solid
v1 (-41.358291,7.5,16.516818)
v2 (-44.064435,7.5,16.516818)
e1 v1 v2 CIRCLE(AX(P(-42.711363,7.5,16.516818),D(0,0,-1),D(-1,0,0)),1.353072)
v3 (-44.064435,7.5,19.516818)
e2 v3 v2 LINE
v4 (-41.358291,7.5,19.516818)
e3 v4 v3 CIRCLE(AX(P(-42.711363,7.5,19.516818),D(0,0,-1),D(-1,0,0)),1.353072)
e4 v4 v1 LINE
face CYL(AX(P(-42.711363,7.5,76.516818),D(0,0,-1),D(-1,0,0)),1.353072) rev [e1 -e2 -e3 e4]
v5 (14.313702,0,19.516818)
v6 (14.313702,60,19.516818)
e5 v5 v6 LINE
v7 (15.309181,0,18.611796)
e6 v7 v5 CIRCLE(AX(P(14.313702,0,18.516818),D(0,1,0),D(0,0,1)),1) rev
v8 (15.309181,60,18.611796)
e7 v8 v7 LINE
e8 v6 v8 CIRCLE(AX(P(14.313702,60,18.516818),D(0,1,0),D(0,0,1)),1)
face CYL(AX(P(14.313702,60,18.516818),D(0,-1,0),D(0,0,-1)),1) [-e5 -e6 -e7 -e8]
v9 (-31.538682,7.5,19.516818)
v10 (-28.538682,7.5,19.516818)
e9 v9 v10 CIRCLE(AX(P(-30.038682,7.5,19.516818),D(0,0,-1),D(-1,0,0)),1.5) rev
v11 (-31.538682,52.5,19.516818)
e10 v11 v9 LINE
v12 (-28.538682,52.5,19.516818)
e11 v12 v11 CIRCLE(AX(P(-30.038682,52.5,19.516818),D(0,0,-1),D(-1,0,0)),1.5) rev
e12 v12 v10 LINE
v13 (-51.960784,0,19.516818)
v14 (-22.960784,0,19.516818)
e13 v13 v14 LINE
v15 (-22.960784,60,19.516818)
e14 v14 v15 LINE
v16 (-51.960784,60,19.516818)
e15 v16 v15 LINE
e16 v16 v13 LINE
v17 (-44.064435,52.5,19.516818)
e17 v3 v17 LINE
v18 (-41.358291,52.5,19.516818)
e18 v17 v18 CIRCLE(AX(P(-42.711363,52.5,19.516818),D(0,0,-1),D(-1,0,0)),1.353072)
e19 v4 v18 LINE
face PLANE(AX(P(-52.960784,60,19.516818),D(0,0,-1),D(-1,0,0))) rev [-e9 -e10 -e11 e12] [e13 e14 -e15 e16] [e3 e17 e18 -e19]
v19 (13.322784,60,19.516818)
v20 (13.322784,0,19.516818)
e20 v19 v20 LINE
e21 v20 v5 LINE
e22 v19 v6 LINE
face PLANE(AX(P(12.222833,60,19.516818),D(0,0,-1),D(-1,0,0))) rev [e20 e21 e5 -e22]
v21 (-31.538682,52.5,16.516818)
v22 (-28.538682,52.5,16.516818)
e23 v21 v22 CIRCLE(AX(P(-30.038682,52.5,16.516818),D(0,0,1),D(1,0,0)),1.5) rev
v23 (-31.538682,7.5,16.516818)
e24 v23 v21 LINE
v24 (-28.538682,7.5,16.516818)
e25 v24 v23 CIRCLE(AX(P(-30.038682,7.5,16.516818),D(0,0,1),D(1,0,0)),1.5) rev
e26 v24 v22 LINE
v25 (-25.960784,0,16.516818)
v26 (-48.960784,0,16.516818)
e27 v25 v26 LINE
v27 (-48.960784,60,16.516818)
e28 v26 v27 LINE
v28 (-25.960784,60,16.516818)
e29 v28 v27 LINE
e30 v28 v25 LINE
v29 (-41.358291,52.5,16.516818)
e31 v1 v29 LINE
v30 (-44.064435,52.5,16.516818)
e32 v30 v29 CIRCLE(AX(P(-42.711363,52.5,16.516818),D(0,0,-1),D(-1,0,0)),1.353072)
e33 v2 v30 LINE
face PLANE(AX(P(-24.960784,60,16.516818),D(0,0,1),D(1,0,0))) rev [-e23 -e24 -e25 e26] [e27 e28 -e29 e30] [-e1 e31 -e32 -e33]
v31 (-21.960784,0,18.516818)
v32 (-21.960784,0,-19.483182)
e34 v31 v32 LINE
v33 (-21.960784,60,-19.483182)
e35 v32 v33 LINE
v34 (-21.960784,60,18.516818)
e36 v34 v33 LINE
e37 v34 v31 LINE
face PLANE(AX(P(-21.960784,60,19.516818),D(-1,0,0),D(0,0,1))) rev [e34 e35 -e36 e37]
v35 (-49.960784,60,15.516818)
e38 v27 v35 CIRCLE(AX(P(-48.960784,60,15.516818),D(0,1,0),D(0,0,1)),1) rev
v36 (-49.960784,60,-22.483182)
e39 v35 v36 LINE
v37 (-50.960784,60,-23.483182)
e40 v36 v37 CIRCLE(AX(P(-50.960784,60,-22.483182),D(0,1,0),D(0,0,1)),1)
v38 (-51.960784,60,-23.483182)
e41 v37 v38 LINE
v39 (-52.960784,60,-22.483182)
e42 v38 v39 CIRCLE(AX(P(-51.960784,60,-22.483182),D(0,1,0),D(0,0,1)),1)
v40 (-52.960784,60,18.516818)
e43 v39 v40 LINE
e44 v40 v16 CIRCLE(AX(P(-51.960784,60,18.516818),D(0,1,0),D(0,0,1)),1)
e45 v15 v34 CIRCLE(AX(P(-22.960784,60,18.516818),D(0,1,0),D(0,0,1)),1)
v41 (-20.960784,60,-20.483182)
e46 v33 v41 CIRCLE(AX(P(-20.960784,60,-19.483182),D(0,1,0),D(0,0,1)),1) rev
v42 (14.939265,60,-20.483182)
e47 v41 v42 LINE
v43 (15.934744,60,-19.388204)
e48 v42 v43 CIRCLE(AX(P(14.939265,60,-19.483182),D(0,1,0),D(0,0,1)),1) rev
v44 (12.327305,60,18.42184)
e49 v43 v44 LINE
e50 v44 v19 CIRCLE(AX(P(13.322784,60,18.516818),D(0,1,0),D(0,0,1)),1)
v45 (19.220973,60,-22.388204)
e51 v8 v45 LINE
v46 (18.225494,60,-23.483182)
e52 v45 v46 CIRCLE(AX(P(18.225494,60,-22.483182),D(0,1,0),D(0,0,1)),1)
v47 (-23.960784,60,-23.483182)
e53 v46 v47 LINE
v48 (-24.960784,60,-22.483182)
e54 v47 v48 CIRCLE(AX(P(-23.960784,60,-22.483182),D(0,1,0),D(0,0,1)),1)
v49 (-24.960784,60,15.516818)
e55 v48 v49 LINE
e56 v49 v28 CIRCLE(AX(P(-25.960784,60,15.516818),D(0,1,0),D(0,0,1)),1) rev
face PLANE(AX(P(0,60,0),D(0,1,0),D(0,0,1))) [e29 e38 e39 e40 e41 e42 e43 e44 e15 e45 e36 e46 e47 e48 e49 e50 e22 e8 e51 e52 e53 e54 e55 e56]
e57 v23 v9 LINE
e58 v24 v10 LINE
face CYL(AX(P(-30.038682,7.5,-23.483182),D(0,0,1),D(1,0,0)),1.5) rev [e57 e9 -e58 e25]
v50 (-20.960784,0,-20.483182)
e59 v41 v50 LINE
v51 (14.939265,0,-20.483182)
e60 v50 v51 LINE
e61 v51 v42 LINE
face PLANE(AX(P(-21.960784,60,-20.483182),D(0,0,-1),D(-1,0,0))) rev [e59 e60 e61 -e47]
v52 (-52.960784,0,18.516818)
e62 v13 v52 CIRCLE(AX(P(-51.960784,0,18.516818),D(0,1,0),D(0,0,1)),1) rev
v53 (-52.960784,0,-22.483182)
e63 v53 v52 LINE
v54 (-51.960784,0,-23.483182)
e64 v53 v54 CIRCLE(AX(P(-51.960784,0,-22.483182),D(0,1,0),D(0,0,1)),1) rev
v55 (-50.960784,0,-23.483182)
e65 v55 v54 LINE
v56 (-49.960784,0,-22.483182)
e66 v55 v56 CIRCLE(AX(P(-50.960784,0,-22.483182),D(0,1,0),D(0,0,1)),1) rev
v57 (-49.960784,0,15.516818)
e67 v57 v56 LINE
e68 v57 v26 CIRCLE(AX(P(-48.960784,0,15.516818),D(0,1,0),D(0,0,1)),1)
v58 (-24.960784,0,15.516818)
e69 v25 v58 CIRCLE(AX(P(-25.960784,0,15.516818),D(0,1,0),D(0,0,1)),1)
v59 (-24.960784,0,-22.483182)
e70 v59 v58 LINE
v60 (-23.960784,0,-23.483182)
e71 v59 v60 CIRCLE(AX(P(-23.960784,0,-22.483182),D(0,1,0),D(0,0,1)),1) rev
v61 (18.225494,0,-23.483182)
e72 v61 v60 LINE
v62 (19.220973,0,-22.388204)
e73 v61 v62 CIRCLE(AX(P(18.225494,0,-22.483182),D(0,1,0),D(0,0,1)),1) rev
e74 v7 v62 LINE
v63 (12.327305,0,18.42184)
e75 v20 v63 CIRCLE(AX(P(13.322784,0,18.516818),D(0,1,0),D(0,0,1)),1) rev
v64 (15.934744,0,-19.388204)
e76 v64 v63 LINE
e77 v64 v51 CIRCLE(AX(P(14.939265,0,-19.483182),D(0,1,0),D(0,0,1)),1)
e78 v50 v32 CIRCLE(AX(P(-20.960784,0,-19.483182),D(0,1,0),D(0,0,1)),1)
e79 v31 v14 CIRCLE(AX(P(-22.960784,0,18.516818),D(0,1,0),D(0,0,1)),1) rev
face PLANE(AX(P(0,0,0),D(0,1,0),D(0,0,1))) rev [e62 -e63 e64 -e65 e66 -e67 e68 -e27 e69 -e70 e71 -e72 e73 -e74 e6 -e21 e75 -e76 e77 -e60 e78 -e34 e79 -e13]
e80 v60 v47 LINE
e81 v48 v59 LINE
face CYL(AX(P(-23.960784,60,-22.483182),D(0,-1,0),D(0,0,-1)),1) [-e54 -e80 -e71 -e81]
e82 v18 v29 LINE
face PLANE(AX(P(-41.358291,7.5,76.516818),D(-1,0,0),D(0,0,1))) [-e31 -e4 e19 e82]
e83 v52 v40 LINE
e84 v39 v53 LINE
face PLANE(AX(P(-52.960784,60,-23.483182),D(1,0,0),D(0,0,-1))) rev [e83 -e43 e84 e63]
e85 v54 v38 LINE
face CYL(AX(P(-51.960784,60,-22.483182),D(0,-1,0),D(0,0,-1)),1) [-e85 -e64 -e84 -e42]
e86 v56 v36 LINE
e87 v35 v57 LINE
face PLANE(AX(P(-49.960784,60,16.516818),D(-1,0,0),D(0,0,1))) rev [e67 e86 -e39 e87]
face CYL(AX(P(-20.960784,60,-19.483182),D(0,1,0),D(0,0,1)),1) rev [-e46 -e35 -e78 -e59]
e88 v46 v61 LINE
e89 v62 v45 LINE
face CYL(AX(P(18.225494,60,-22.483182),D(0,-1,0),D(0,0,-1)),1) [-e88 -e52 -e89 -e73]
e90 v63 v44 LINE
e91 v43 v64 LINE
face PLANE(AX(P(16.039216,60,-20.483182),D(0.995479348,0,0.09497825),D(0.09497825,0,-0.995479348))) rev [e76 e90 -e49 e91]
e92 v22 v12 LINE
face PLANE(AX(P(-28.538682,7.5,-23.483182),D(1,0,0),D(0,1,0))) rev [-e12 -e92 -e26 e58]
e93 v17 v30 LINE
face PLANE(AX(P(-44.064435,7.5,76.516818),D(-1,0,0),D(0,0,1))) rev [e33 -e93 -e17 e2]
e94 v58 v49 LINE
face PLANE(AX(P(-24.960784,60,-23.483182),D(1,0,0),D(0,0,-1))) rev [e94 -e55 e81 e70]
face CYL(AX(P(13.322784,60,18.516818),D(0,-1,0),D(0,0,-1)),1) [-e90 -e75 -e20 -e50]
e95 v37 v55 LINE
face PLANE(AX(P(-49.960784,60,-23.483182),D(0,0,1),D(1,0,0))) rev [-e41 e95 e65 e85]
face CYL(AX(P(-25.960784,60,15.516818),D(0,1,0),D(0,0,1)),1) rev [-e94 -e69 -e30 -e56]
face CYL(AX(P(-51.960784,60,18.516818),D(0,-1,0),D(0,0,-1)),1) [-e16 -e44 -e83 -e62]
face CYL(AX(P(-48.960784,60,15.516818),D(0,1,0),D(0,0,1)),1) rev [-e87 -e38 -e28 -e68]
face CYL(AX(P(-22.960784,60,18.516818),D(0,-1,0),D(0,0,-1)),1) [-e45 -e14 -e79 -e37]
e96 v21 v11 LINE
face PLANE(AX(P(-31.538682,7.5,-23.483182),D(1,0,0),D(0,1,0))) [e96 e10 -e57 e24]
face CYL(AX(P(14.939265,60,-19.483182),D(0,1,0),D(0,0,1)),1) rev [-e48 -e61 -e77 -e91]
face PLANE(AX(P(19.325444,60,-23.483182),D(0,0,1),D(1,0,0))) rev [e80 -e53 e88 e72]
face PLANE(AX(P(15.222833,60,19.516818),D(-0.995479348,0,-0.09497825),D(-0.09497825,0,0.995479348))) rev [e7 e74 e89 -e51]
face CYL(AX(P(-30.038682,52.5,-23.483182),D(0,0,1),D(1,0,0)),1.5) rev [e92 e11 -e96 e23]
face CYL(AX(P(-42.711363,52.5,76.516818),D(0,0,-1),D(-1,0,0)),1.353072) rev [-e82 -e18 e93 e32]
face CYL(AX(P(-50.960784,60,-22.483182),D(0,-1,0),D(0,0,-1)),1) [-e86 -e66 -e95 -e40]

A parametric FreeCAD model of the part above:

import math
import FreeCAD as App
import Part
import Sketcher

V = App.Vector


def edges_at(feature, points):
    """Names of the edges that pass closest to the given points."""
    edges = feature.Shape.Edges
    near = lambda p: min(range(len(edges)), key=lambda i: edges[i].distToShape(Part.Vertex(*p))[0])
    return sorted({f"Edge{near(p) + 1}" for p in points})

doc = App.newDocument("Part")
body = doc.addObject("PartDesign::Body", "Body")

# Sketch on XZ plane
sketch1 = doc.addObject("Sketcher::SketchObject", "Sketch")
body.addObject(sketch1)
sketch1.AttachmentSupport = (doc.XZ_Plane, [""])
sketch1.MapMode = "FlatFace"
sketch1.addGeometry([
    Part.LineSegment(V(-21.960784, 19.516818, 0), V(-21.960784, -20.483182, 0)),  # 0
    Part.LineSegment(V(-21.960784, -20.483182, 0), V(16.039216, -20.483182, 0)),  # 1
    Part.LineSegment(V(16.039216, -20.483182, 0), V(12.222833, 19.516818, 0)),  # 2
    Part.LineSegment(V(12.222833, 19.516818, 0), V(15.222833, 19.516818, 0)),  # 3
    Part.LineSegment(V(15.222833, 19.516818, 0), V(19.325444, -23.483182, 0)),  # 4
    Part.LineSegment(V(19.325444, -23.483182, 0), V(-24.960784, -23.483182, 0)),  # 5
    Part.LineSegment(V(-24.960784, -23.483182, 0), V(-24.960784, 16.516818, 0)),  # 6
    Part.LineSegment(V(-24.960784, 16.516818, 0), V(-49.960784, 16.516818, 0)),  # 7
    Part.LineSegment(V(-49.960784, 16.516818, 0), V(-49.960784, -23.483182, 0)),  # 8
    Part.LineSegment(V(-49.960784, -23.483182, 0), V(-52.960784, -23.483182, 0)),  # 9
    Part.LineSegment(V(-52.960784, -23.483182, 0), V(-52.960784, 19.516818, 0)),  # 10
    Part.LineSegment(V(-52.960784, 19.516818, 0), V(-21.960784, 19.516818, 0)),  # 11
], False)
sketch1.addConstraint([
    Sketcher.Constraint("Coincident", 0, 2, 1, 1),
    Sketcher.Constraint("Coincident", 1, 2, 2, 1),
    Sketcher.Constraint("Coincident", 2, 2, 3, 1),
    Sketcher.Constraint("Coincident", 3, 2, 4, 1),
    Sketcher.Constraint("Coincident", 4, 2, 5, 1),
    Sketcher.Constraint("Coincident", 5, 2, 6, 1),
    Sketcher.Constraint("Coincident", 6, 2, 7, 1),
    Sketcher.Constraint("Coincident", 7, 2, 8, 1),
    Sketcher.Constraint("Coincident", 8, 2, 9, 1),
    Sketcher.Constraint("Coincident", 9, 2, 10, 1),
    Sketcher.Constraint("Coincident", 10, 2, 11, 1),
    Sketcher.Constraint("Coincident", 11, 2, 0, 1),
    Sketcher.Constraint("Vertical", 0),
    Sketcher.Constraint("Horizontal", 1),
    Sketcher.Constraint("Horizontal", 3),
    Sketcher.Constraint("Horizontal", 5),
    Sketcher.Constraint("Vertical", 6),
    Sketcher.Constraint("Horizontal", 7),
    Sketcher.Constraint("Vertical", 8),
    Sketcher.Constraint("Horizontal", 9),
    Sketcher.Constraint("Vertical", 10),
    Sketcher.Constraint("Horizontal", 11),
    Sketcher.Constraint("Parallel", 2, 4),
    Sketcher.Constraint("Horizontal", 5, 2, 8, 2),
    Sketcher.Constraint("Horizontal", 3, 2, 10, 2),
    Sketcher.Constraint("Equal", 3, 9),
    Sketcher.Constraint("Equal", 0, 6),
    Sketcher.Constraint("DistanceX", 1, 1, 1, 2, 38.0),
    Sketcher.Constraint("DistanceX", 3, 1, 3, 2, 3.0),
    Sketcher.Constraint("DistanceX", 7, 2, 7, 1, 25.0),
    Sketcher.Constraint("DistanceX", 11, 1, 11, 2, 31.0),
    Sketcher.Constraint("DistanceY", 0, 2, 0, 1, 40.0),
    Sketcher.Constraint("DistanceY", 10, 1, 10, 2, 43.0),
    Sketcher.Constraint("DistanceX", 5, 2, 5, 1, 44.286229),
    Sketcher.Constraint("DistanceX", 0, 2, -1, 1, 21.960784),
    Sketcher.Constraint("DistanceY", 0, 2, -1, 1, 20.483182),
])
pad1 = doc.addObject("PartDesign::Pad", "Pad")
body.addObject(pad1)
pad1.Profile = sketch1
pad1.Length = 60
pad1.Reversed = True
doc.recompute()

fillet = doc.addObject("PartDesign::Fillet", "Fillet")
body.addObject(fillet)
fillet.Base = (pad1, edges_at(pad1, [
    (-52.961, 30, 19.517),
    (-52.961, 30, -23.483),
    (-49.961, 30, -23.483),
    (-49.961, 30, 16.517),
    (-24.961, 30, 16.517),
    (-24.961, 30, -23.483),
    (19.325, 30, -23.483),
    (15.223, 30, 19.517),
    (12.223, 30, 19.517),
    (16.039, 30, -20.483),
    (-21.961, 30, -20.483),
    (-21.961, 30, 19.517),
]))
fillet.Radius = 1

# Sketch on XY plane
sketch2 = doc.addObject("Sketcher::SketchObject", "Sketch001")
body.addObject(sketch2)
sketch2.AttachmentSupport = (doc.XY_Plane, [""])
sketch2.MapMode = "FlatFace"
sketch2.AttachmentOffset = App.Placement(V(0, 0, 16.516818), App.Rotation())
sketch2.addGeometry([
    Part.LineSegment(V(-41.358291, 52.5, 0), V(-41.358291, 7.5, 0)),
    Part.ArcOfCircle(Part.Circle(V(-42.711363, 7.5, 0), V(0, 0, 1), 1.353072), math.radians(180), math.radians(360)),
    Part.LineSegment(V(-44.064435, 7.5, 0), V(-44.064435, 52.5, 0)),
    Part.ArcOfCircle(Part.Circle(V(-42.711363, 52.5, 0), V(0, 0, 1), 1.353072), math.radians(0), math.radians(180)),
], False)
sketch2.addConstraint([
    Sketcher.Constraint("Tangent", 0, 2, 1, 2),
    Sketcher.Constraint("Tangent", 1, 1, 2, 1),
    Sketcher.Constraint("Tangent", 2, 2, 3, 2),
    Sketcher.Constraint("Tangent", 3, 1, 0, 1),
    Sketcher.Constraint("Vertical", 0),
    Sketcher.Constraint("Vertical", 2),
    Sketcher.Constraint("DistanceY", 0, 2, 0, 1, 45.0),
    Sketcher.Constraint("DistanceY", -1, 1, 1, 3, 7.5),
    Sketcher.Constraint("Radius", 1, 1.353072),
    Sketcher.Constraint("DistanceX", 0, 2, -1, 1, 41.358291),
])
pocket1 = doc.addObject("PartDesign::Pocket", "Pocket")
body.addObject(pocket1)
pocket1.Profile = sketch2
pocket1.Length = 60
pocket1.Reversed = True

# Sketch on XY plane
sketch3 = doc.addObject("Sketcher::SketchObject", "Sketch002")
body.addObject(sketch3)
sketch3.AttachmentSupport = (doc.XY_Plane, [""])
sketch3.MapMode = "FlatFace"
sketch3.AttachmentOffset = App.Placement(V(0, 0, 16.516818), App.Rotation())
sketch3.addGeometry([
    Part.LineSegment(V(-28.538682, 52.5, 0), V(-28.538682, 7.5, 0)),
    Part.ArcOfCircle(Part.Circle(V(-30.038682, 7.5, 0), V(0, 0, 1), 1.5), math.radians(180), math.radians(360)),
    Part.LineSegment(V(-31.538682, 7.5, 0), V(-31.538682, 52.5, 0)),
    Part.ArcOfCircle(Part.Circle(V(-30.038682, 52.5, 0), V(0, 0, 1), 1.5), math.radians(0), math.radians(180)),
], False)
sketch3.addConstraint([
    Sketcher.Constraint("Tangent", 0, 2, 1, 2),
    Sketcher.Constraint("Tangent", 1, 1, 2, 1),
    Sketcher.Constraint("Tangent", 2, 2, 3, 2),
    Sketcher.Constraint("Tangent", 3, 1, 0, 1),
    Sketcher.Constraint("Vertical", 0),
    Sketcher.Constraint("Vertical", 2),
    Sketcher.Constraint("Radius", 1, 1.5),
    Sketcher.Constraint("DistanceY", 0, 2, 0, 1, 45.0),
    Sketcher.Constraint("DistanceY", -1, 1, 1, 3, 7.5),
    Sketcher.Constraint("DistanceX", 1, 3, -1, 1, 30.038682),
])
pocket2 = doc.addObject("PartDesign::Pocket", "Pocket001")
body.addObject(pocket2)
pocket2.Profile = sketch3
pocket2.Type = "ThroughAll"
pocket2.Midplane = True

doc.recompute()
